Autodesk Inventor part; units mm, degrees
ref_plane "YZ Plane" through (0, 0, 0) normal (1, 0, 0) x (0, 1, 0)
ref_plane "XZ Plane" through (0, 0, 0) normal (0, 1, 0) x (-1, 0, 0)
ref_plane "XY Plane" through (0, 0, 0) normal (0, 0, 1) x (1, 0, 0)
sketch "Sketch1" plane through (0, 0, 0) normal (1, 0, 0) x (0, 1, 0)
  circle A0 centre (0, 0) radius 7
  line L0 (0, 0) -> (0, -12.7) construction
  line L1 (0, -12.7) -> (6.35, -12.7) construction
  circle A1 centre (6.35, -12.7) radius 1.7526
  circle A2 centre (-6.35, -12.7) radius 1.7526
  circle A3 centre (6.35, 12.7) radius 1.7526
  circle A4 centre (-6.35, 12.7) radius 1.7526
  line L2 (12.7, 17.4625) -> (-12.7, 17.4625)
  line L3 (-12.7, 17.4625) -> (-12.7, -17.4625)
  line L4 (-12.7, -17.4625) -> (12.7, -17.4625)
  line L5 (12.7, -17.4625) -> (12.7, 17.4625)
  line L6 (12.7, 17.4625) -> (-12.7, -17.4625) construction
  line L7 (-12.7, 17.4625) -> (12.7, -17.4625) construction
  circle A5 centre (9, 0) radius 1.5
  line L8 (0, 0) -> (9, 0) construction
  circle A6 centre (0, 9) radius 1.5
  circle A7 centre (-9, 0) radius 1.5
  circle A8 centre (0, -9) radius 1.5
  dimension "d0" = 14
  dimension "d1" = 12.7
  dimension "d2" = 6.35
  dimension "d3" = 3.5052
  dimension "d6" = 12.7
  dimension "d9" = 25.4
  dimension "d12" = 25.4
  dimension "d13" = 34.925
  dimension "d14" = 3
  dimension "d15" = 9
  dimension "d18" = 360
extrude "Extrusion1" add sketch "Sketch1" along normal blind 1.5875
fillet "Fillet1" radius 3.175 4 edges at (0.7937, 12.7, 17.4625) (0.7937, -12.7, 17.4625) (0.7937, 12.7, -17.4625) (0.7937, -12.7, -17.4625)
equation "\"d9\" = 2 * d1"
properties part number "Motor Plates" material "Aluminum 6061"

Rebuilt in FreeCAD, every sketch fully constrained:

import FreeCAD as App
import Part
import Sketcher
Q = App.Units.Quantity


def edges_at(feature, points):
    """Names of the edges that pass closest to the given points."""
    edges = feature.Shape.Edges
    near = lambda p: min(range(len(edges)), key=lambda i: edges[i].distToShape(Part.Vertex(*p))[0])
    return sorted({f"Edge{near(p) + 1}" for p in points})

doc = App.newDocument("Part")
body = doc.addObject("PartDesign::Body", "Body")

sketch1 = body.newObject("Sketcher::SketchObject", "Sketch")
sketch1.AttachmentSupport = (doc.getObject("YZ_Plane"), [""])
sketch1.MapMode = "FlatFace"
sketch1.addGeometry([
    Part.LineSegment(App.Vector(12.7, -17.4625, 0), App.Vector(12.7, 17.4625, 0)),
    Part.LineSegment(App.Vector(12.7, 17.4625, 0), App.Vector(-12.7, 17.4625, 0)),
    Part.LineSegment(App.Vector(-12.7, 17.4625, 0), App.Vector(-12.7, -17.4625, 0)),
    Part.LineSegment(App.Vector(-12.7, -17.4625, 0), App.Vector(12.7, -17.4625, 0)),
    Part.Circle(App.Vector(-6.35, -12.7, 0), App.Vector(0, 0, 1), 1.7526),
    Part.Circle(App.Vector(0, -9, 0), App.Vector(0, 0, 1), 1.5),
    Part.Circle(App.Vector(6.35, -12.7, 0), App.Vector(0, 0, 1), 1.7526),
    Part.Circle(App.Vector(-9, 0, 0), App.Vector(0, 0, 1), 1.5),
    Part.Circle(App.Vector(0, 0, 0), App.Vector(0, 0, 1), 7),
    Part.Circle(App.Vector(-6.35, 12.7, 0), App.Vector(0, 0, 1), 1.7526),
    Part.Circle(App.Vector(0, 9, 0), App.Vector(0, 0, 1), 1.5),
    Part.Circle(App.Vector(9, 0, 0), App.Vector(0, 0, 1), 1.5),
    Part.Circle(App.Vector(6.35, 12.7, 0), App.Vector(0, 0, 1), 1.7526),
], False)
sketch1.addConstraint([
    Sketcher.Constraint("Coincident", 0, 2, 1, 1),
    Sketcher.Constraint("Coincident", 1, 2, 2, 1),
    Sketcher.Constraint("Coincident", 2, 2, 3, 1),
    Sketcher.Constraint("Coincident", 3, 2, 0, 1),
    Sketcher.Constraint("Vertical", 0),
    Sketcher.Constraint("Horizontal", 1),
    Sketcher.Constraint("Vertical", 2),
    Sketcher.Constraint("Horizontal", 3),
    Sketcher.Constraint("Coincident", 8, 3, -1, 1),
    Sketcher.Constraint("Equal", 4, 6),
    Sketcher.Constraint("Equal", 5, 7),
    Sketcher.Constraint("Equal", 6, 9),
    Sketcher.Constraint("Equal", 7, 10),
    Sketcher.Constraint("Equal", 10, 11),
    Sketcher.Constraint("Equal", 9, 12),
    Sketcher.Constraint("Symmetric", 6, 3, 9, 3, -1, 1),
    Sketcher.Constraint("Symmetric", 5, 3, 10, 3, -1, 1),
    Sketcher.Constraint("Symmetric", 7, 3, 11, 3, -1, 1),
    Sketcher.Constraint("Symmetric", 4, 3, 12, 3, -1, 1),
    Sketcher.Constraint("Symmetric", 0, 2, 2, 2, -1, 1),
    Sketcher.Constraint("Symmetric", 4, 3, 6, 3, -2),
    Sketcher.Constraint("PointOnObject", 5, 3, -2),
    Sketcher.Constraint("PointOnObject", 7, 3, -1),
    Sketcher.Constraint("DistanceX", 1, 2, 1, 1, Q("1 in")),
    Sketcher.Constraint("Diameter", 4, Q("0.138 in")),
    Sketcher.Constraint("DistanceY", 4, 3, 9, 3, Q("1 in")),
    Sketcher.Constraint("Diameter", 5, Q("0.1181 in")),
    Sketcher.Constraint("DistanceX", 4, 3, 6, 3, Q("0.5 in")),
    Sketcher.Constraint("Diameter", 8, 14.0),
    Sketcher.Constraint("DistanceY", 0, 1, 0, 2, Q("1.375 in")),
    Sketcher.Constraint("DistanceY", 5, 3, -1, 1, 9.0),
    Sketcher.Constraint("DistanceX", 7, 3, -1, 1, 9.0),
])
pad1 = body.newObject("PartDesign::Pad", "Pad")
pad1.Profile = sketch1
pad1.Length = Q("0.0625 in")
doc.recompute()

fillet = body.newObject("PartDesign::Fillet", "Fillet")
fillet.Base = (pad1, edges_at(pad1, [
    (0.794, 12.7, 17.462),
    (0.794, -12.7, 17.462),
    (0.794, 12.7, -17.462),
    (0.794, -12.7, -17.462),
]))
fillet.Radius = Q("0.125 in")

doc.recompute()
